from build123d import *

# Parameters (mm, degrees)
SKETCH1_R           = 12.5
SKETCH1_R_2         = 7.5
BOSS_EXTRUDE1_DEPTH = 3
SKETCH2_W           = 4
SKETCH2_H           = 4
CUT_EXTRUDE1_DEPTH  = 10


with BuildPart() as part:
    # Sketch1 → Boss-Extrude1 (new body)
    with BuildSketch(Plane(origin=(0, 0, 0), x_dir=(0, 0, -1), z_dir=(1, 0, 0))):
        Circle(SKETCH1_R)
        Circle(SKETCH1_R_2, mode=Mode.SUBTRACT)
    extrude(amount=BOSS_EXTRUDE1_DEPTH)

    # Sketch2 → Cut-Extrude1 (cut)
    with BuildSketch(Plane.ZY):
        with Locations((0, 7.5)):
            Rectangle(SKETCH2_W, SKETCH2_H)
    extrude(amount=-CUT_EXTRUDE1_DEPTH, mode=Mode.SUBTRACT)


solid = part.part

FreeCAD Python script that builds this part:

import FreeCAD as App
import Part
import Sketcher
Q = App.Units.Quantity

doc = App.newDocument("Part")
body = doc.addObject("PartDesign::Body", "Body")

# Sketch on YZ plane
sketch1 = doc.addObject("Sketcher::SketchObject", "Sketch")
body.addObject(sketch1)
sketch1.AttachmentSupport = (doc.YZ_Plane, [""])
sketch1.MapMode = "FlatFace"
sketch1.addGeometry(Part.Circle(App.Vector(0, 0, 0), App.Vector(0, 0, 1), 12), False)
sketch1.addGeometry(Part.Circle(App.Vector(0, 0, 0), App.Vector(0, 0, 1), 8), False)
sketch1.addConstraint(Sketcher.Constraint("Coincident", 0, 3, -1, 1))
sketch1.addConstraint(Sketcher.Constraint("Coincident", 1, 3, -1, 1))
sketch1.addConstraint(Sketcher.Constraint("Diameter", 0, Q("25 mm")))
sketch1.addConstraint(Sketcher.Constraint("Diameter", 1, Q("15 mm")))
pad1 = doc.addObject("PartDesign::Pad", "Pad")
body.addObject(pad1)
pad1.Profile = sketch1
pad1.Length = 3

# Sketch on YZ plane
sketch2 = doc.addObject("Sketcher::SketchObject", "Sketch001")
body.addObject(sketch2)
sketch2.AttachmentSupport = (doc.YZ_Plane, [""])
sketch2.MapMode = "FlatFace"
sketch2.addGeometry(Part.LineSegment(App.Vector(9.5, -2, 0), App.Vector(5.5, -2, 0)), False)
sketch2.addGeometry(Part.LineSegment(App.Vector(5.5, -2, 0), App.Vector(5.5, 2, 0)), False)
sketch2.addGeometry(Part.LineSegment(App.Vector(5.5, 2, 0), App.Vector(9.5, 2, 0)), False)
sketch2.addGeometry(Part.LineSegment(App.Vector(9.5, 2, 0), App.Vector(9.5, -2, 0)), False)
sketch2.addConstraint(Sketcher.Constraint("Coincident", 0, 2, 1, 1))
sketch2.addConstraint(Sketcher.Constraint("Coincident", 1, 2, 2, 1))
sketch2.addConstraint(Sketcher.Constraint("Coincident", 2, 2, 3, 1))
sketch2.addConstraint(Sketcher.Constraint("Coincident", 3, 2, 0, 1))
sketch2.addConstraint(Sketcher.Constraint("Horizontal", 0))
sketch2.addConstraint(Sketcher.Constraint("Vertical", 1))
sketch2.addConstraint(Sketcher.Constraint("Horizontal", 2))
sketch2.addConstraint(Sketcher.Constraint("Vertical", 3))
sketch2.addConstraint(Sketcher.Constraint("Equal", 2, 1))
sketch2.addConstraint(Sketcher.Constraint("DistanceX", 0, 2, 0, 1, Q("4 mm")))
sketch2.addConstraint(Sketcher.Constraint("DistanceY", 0, 2, -1, 1, Q("2 mm")))
sketch2.addConstraint(Sketcher.Constraint("DistanceX", -1, 1, 0, 2, Q("5.5 mm")))
pocket1 = doc.addObject("PartDesign::Pocket", "Pocket")
body.addObject(pocket1)
pocket1.Profile = sketch2
pocket1.Length = 10
pocket1.Reversed = True

doc.recompute()
